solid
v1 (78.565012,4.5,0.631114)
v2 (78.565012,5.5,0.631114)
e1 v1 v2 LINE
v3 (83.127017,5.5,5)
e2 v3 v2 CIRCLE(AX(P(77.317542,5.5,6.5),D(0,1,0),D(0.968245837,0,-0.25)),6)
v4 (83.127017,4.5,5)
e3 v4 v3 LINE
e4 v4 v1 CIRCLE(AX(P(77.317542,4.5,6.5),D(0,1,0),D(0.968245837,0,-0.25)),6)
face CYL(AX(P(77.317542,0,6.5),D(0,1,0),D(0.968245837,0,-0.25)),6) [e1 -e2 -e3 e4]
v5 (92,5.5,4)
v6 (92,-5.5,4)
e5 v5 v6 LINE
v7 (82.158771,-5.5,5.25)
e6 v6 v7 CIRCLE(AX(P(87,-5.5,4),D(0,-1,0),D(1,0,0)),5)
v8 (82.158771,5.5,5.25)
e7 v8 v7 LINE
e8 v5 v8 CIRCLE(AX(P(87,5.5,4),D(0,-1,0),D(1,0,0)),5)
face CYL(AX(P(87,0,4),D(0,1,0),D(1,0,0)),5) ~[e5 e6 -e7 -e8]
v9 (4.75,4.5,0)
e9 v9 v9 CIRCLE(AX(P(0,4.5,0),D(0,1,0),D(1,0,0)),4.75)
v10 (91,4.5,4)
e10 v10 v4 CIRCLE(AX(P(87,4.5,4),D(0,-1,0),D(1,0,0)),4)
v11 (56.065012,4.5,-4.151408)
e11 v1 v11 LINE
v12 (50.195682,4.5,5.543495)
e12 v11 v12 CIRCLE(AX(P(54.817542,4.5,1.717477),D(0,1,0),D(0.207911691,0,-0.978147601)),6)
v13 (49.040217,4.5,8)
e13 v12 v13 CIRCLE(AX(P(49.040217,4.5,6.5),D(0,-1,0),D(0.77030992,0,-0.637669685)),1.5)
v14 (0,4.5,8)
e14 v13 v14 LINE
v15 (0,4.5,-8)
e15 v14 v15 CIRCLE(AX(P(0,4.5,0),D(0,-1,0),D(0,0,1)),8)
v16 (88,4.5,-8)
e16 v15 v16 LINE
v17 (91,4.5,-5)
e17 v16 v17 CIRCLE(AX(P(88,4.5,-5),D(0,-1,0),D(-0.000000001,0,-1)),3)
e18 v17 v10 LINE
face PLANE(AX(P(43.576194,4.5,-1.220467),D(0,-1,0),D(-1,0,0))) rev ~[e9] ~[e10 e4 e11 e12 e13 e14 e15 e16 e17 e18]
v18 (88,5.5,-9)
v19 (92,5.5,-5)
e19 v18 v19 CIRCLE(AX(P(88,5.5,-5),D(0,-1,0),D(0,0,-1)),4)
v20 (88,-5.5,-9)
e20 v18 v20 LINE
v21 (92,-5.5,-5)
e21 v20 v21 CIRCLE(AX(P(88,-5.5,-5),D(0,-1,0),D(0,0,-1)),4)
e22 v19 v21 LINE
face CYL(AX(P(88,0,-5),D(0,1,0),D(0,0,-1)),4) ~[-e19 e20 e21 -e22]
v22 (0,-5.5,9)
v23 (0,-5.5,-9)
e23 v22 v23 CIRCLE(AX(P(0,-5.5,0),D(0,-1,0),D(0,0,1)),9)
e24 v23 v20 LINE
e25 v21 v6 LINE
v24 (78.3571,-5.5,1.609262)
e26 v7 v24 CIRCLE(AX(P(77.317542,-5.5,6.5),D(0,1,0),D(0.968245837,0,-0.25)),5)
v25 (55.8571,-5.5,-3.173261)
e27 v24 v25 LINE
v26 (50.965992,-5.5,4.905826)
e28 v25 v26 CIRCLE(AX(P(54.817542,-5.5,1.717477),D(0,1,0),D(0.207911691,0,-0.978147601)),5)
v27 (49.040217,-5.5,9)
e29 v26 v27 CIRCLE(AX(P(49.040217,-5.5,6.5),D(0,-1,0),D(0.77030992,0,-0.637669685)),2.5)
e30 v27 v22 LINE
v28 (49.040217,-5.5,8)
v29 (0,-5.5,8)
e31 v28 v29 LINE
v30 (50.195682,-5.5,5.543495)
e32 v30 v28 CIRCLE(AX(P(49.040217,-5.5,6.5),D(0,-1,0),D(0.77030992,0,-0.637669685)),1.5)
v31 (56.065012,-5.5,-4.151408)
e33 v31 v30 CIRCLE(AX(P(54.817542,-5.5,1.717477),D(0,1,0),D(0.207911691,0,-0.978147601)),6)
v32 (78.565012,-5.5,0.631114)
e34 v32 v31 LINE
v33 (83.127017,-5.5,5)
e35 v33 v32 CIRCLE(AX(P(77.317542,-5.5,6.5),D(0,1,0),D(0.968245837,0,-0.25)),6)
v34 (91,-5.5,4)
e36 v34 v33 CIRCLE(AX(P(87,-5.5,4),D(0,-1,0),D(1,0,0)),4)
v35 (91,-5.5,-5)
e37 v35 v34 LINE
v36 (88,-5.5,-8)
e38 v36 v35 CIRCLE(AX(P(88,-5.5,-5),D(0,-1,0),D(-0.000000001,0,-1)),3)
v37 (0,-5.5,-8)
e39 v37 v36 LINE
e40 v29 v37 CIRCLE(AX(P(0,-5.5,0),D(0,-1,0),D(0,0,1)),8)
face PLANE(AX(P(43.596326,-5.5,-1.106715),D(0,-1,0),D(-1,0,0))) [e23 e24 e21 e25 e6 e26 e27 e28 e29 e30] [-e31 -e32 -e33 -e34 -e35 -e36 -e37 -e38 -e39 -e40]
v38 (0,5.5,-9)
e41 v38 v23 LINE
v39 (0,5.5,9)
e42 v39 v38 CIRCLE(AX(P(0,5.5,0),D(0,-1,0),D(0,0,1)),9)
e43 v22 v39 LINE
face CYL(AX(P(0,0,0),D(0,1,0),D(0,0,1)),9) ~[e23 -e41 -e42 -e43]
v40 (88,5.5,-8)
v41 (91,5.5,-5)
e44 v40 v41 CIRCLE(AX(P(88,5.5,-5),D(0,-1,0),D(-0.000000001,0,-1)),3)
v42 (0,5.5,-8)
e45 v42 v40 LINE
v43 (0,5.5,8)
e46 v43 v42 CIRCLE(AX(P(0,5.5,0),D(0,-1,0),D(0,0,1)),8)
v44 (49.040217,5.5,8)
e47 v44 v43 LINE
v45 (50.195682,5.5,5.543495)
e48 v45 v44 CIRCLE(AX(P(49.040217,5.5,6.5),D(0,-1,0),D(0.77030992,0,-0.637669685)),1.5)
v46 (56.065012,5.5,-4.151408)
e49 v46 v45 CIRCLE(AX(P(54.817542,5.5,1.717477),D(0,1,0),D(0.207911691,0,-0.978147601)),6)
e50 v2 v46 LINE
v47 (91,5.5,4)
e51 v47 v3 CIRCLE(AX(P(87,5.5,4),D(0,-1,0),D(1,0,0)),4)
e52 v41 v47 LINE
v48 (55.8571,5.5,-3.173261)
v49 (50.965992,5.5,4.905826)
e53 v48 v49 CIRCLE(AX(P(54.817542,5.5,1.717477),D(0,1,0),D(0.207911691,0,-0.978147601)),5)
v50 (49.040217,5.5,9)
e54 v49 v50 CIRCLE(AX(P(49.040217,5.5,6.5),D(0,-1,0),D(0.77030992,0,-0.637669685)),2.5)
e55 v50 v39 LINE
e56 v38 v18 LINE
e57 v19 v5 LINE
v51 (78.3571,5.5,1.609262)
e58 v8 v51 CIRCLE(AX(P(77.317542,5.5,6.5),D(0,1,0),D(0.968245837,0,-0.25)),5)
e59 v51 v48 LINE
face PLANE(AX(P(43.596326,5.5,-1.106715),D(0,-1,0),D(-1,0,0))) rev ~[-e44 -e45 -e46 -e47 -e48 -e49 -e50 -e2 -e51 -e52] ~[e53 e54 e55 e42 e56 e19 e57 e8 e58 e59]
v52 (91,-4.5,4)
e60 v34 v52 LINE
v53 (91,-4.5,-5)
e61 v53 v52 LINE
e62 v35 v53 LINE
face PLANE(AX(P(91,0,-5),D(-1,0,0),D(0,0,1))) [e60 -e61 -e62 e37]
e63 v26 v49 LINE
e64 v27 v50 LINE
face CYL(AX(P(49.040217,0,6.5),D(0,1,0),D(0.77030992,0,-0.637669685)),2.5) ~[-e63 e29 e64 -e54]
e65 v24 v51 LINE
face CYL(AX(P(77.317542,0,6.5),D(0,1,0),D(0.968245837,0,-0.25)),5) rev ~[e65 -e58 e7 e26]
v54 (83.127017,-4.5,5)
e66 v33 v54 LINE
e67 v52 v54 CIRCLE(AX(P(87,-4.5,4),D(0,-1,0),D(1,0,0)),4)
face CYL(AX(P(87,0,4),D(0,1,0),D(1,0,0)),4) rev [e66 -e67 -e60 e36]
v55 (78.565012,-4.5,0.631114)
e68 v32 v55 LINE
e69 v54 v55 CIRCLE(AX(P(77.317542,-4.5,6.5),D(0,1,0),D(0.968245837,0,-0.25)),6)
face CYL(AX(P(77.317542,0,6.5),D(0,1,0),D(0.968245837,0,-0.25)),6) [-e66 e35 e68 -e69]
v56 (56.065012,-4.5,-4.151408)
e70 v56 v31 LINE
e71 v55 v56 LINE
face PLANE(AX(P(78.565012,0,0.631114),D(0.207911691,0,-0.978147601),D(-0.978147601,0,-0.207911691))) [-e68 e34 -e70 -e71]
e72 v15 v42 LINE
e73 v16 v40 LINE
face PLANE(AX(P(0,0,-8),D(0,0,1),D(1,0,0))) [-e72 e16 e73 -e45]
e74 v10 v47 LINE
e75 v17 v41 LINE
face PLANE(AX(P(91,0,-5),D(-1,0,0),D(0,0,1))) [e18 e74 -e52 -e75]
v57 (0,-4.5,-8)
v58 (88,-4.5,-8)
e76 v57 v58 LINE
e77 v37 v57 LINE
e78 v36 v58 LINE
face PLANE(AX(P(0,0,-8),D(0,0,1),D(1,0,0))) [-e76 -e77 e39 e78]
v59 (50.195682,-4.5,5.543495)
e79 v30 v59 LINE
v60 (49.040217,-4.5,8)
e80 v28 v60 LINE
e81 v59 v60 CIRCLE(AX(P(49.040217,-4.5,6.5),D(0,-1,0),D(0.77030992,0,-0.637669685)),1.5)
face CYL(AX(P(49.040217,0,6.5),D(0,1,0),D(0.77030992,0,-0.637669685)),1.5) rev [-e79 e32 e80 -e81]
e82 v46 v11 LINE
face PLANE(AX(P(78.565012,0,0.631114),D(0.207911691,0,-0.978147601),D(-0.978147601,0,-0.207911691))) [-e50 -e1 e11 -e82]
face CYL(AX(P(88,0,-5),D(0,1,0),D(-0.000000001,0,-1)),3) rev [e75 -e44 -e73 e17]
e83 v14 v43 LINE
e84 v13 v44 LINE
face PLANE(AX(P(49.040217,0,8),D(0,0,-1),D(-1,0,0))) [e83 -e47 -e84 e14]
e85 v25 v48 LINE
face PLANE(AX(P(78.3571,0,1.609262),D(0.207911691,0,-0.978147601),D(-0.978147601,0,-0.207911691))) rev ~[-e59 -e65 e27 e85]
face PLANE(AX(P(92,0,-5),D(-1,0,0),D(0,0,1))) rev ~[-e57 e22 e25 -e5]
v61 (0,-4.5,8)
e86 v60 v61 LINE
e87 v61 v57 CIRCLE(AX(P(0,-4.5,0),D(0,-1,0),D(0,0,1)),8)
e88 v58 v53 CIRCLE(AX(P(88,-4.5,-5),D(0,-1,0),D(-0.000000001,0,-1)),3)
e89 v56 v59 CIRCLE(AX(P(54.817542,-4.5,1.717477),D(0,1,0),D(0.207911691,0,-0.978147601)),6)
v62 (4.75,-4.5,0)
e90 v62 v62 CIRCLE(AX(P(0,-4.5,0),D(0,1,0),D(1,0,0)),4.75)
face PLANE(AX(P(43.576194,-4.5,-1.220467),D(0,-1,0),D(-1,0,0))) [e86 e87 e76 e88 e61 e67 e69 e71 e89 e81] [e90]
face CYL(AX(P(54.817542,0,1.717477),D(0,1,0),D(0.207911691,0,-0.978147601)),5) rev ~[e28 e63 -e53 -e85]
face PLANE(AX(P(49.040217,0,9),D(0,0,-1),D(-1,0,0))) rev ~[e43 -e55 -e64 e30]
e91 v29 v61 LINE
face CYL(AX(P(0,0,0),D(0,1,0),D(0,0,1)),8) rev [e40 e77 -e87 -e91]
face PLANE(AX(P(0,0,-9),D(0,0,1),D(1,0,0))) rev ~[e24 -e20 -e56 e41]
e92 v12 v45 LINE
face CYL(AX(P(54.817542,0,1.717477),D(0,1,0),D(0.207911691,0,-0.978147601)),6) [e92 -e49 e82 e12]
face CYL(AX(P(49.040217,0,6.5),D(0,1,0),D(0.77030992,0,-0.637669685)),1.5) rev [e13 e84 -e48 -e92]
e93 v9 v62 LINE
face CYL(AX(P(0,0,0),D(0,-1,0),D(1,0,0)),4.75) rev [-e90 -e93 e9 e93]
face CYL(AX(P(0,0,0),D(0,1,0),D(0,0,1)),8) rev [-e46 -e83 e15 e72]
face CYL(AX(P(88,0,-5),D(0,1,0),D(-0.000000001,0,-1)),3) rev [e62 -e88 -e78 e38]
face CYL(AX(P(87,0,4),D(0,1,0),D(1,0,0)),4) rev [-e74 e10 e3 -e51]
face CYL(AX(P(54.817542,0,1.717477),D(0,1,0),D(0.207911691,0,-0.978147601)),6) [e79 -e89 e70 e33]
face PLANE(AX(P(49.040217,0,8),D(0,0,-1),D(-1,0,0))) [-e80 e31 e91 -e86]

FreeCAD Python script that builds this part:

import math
import FreeCAD as App
import Part
import Sketcher
Q = App.Units.Quantity

doc = App.newDocument("Part")
body = doc.addObject("PartDesign::Body", "Body")

sketch1 = body.newObject("Sketcher::SketchObject", "Sketch")
sketch1.AttachmentSupport = (doc.getObject("XZ_Plane"), [""])
sketch1.MapMode = "FlatFace"
sketch1.addGeometry(Part.ArcOfCircle(Part.Circle(App.Vector(49, 6.5, 0), App.Vector(0, 0, 1), 1.5), math.radians(-40), math.radians(90)), False)
sketch1.addGeometry(Part.ArcOfCircle(Part.Circle(App.Vector(54.8, 1.7, 0), App.Vector(0, 0, 1), 6), math.radians(140), math.radians(282)), False)
sketch1.addGeometry(Part.LineSegment(App.Vector(56.1, -4.2, 0), App.Vector(78.6, 0.6, 0)), False)
sketch1.addGeometry(Part.ArcOfCircle(Part.Circle(App.Vector(77.3, 6.5, 0), App.Vector(0, 0, 1), 6), math.radians(-78), math.radians(-14)), False)
sketch1.addGeometry(Part.ArcOfCircle(Part.Circle(App.Vector(87, 4, 0), App.Vector(0, 0, 1), 4), math.radians(0), math.radians(166)), False)
sketch1.addGeometry(Part.LineSegment(App.Vector(91, 4, 0), App.Vector(91, -5, 0)), False)
sketch1.addGeometry(Part.ArcOfCircle(Part.Circle(App.Vector(88, -5, 0), App.Vector(0, 0, 1), 3), math.radians(-90), math.radians(0)), False)
sketch1.addGeometry(Part.LineSegment(App.Vector(88, -8, 0), App.Vector(0, -8, 0)), False)
sketch1.addGeometry(Part.ArcOfCircle(Part.Circle(App.Vector(0, 0, 0), App.Vector(0, 0, 1), 8), math.radians(90), math.radians(270)), False)
sketch1.addGeometry(Part.LineSegment(App.Vector(0, 8, 0), App.Vector(49, 8, 0)), False)
sketch1.addGeometry(Part.Circle(App.Vector(0, 0, 0), App.Vector(0, 0, 1), 4.8), False)
sketch1.addConstraint(Sketcher.Constraint("Tangent", 0, 1, 1, 1))
sketch1.addConstraint(Sketcher.Constraint("Tangent", 1, 2, 2, 1))
sketch1.addConstraint(Sketcher.Constraint("Tangent", 2, 2, 3, 1))
sketch1.addConstraint(Sketcher.Constraint("Tangent", 3, 2, 4, 2))
sketch1.addConstraint(Sketcher.Constraint("Tangent", 4, 1, 5, 1))
sketch1.addConstraint(Sketcher.Constraint("Tangent", 5, 2, 6, 2))
sketch1.addConstraint(Sketcher.Constraint("Tangent", 6, 1, 7, 1))
sketch1.addConstraint(Sketcher.Constraint("Tangent", 7, 2, 8, 2))
sketch1.addConstraint(Sketcher.Constraint("Tangent", 8, 1, 9, 1))
sketch1.addConstraint(Sketcher.Constraint("Tangent", 9, 2, 0, 2))
sketch1.addConstraint(Sketcher.Constraint("Vertical", 5))
sketch1.addConstraint(Sketcher.Constraint("Horizontal", 7))
sketch1.addConstraint(Sketcher.Constraint("Horizontal", 9))
sketch1.addConstraint(Sketcher.Constraint("Coincident", 8, 3, -1, 1))
sketch1.addConstraint(Sketcher.Constraint("Coincident", 10, 3, -1, 1))
sketch1.addConstraint(Sketcher.Constraint("Equal", 1, 3))
sketch1.addConstraint(Sketcher.Constraint("Horizontal", 0, 3, 3, 3))
sketch1.addConstraint(Sketcher.Constraint("Radius", 1, Q("6 mm")))
sketch1.addConstraint(Sketcher.Constraint("Radius", 4, Q("4 mm")))
sketch1.addConstraint(Sketcher.Constraint("Radius", 6, Q("3 mm")))
sketch1.addConstraint(Sketcher.Constraint("Radius", 8, Q("8 mm")))
sketch1.addConstraint(Sketcher.Constraint("Diameter", 10, Q("9.5 mm")))
sketch1.addConstraint(Sketcher.Constraint("Radius", 0, Q("1.5 mm")))
sketch1.addConstraint(Sketcher.Constraint("DistanceX", 7, 2, 7, 1, Q("88 mm")))
sketch1.addConstraint(Sketcher.Constraint("DistanceY", 5, 2, 5, 1, Q("9 mm")))
sketch1.addConstraint(Sketcher.Constraint("Angle", 2, Q("12 deg")))
sketch1.addConstraint(Sketcher.Constraint("DistanceX", 1, 3, 3, 3, Q("22.5 mm")))
pad1 = body.newObject("PartDesign::Pad", "Pad")
pad1.Profile = sketch1
pad1.Length = 9
pad1.Midplane = True

sketch2 = body.newObject("Sketcher::SketchObject", "Sketch001")
sketch2.AttachmentSupport = (doc.getObject("XZ_Plane"), [""])
sketch2.MapMode = "FlatFace"
sketch2.addGeometry(Part.ArcOfCircle(Part.Circle(App.Vector(0, 0, 0), App.Vector(0, 0, 1), 9), math.radians(90), math.radians(270)), False)
sketch2.addGeometry(Part.LineSegment(App.Vector(0, 9, 0), App.Vector(49, 9, 0)), False)
sketch2.addGeometry(Part.ArcOfCircle(Part.Circle(App.Vector(49, 6.5, 0), App.Vector(0, 0, 1), 2.5), math.radians(-40), math.radians(90)), False)
sketch2.addGeometry(Part.ArcOfCircle(Part.Circle(App.Vector(54.8, 1.7, 0), App.Vector(0, 0, 1), 5), math.radians(140), math.radians(282)), False)
sketch2.addGeometry(Part.LineSegment(App.Vector(55.9, -3.2, 0), App.Vector(78.4, 1.6, 0)), False)
sketch2.addGeometry(Part.ArcOfCircle(Part.Circle(App.Vector(77.3, 6.5, 0), App.Vector(0, 0, 1), 5), math.radians(-78), math.radians(-14)), False)
sketch2.addGeometry(Part.ArcOfCircle(Part.Circle(App.Vector(87, 4, 0), App.Vector(0, 0, 1), 5), math.radians(0), math.radians(166)), False)
sketch2.addGeometry(Part.LineSegment(App.Vector(92, 4, 0), App.Vector(92, -5, 0)), False)
sketch2.addGeometry(Part.ArcOfCircle(Part.Circle(App.Vector(88, -5, 0), App.Vector(0, 0, 1), 4), math.radians(-90), math.radians(0)), False)
sketch2.addGeometry(Part.LineSegment(App.Vector(88, -9, 0), App.Vector(0, -9, 0)), False)
sketch2.addGeometry(Part.ArcOfCircle(Part.Circle(App.Vector(54.8, 1.7, 0), App.Vector(0, 0, 1), 6), math.radians(140), math.radians(282)), False)
sketch2.addGeometry(Part.ArcOfCircle(Part.Circle(App.Vector(49, 6.5, 0), App.Vector(0, 0, 1), 1.5), math.radians(-40), math.radians(90)), False)
sketch2.addGeometry(Part.LineSegment(App.Vector(49, 8, 0), App.Vector(0, 8, 0)), False)
sketch2.addGeometry(Part.ArcOfCircle(Part.Circle(App.Vector(0, 0, 0), App.Vector(0, 0, 1), 8), math.radians(90), math.radians(270)), False)
sketch2.addGeometry(Part.LineSegment(App.Vector(0, -8, 0), App.Vector(88, -8, 0)), False)
sketch2.addGeometry(Part.ArcOfCircle(Part.Circle(App.Vector(88, -5, 0), App.Vector(0, 0, 1), 3), math.radians(-90), math.radians(0)), False)
sketch2.addGeometry(Part.LineSegment(App.Vector(91, -5, 0), App.Vector(91, 4, 0)), False)
sketch2.addGeometry(Part.ArcOfCircle(Part.Circle(App.Vector(87, 4, 0), App.Vector(0, 0, 1), 4), math.radians(0), math.radians(166)), False)
sketch2.addGeometry(Part.ArcOfCircle(Part.Circle(App.Vector(77.3, 6.5, 0), App.Vector(0, 0, 1), 6), math.radians(-78), math.radians(-14)), False)
sketch2.addGeometry(Part.LineSegment(App.Vector(78.6, 0.6, 0), App.Vector(56.1, -4.2, 0)), False)
sketch2.addConstraint(Sketcher.Constraint("Tangent", 0, 1, 1, 1))
sketch2.addConstraint(Sketcher.Constraint("Tangent", 1, 2, 2, 2))
sketch2.addConstraint(Sketcher.Constraint("Tangent", 2, 1, 3, 1))
sketch2.addConstraint(Sketcher.Constraint("Tangent", 3, 2, 4, 1))
sketch2.addConstraint(Sketcher.Constraint("Tangent", 4, 2, 5, 1))
sketch2.addConstraint(Sketcher.Constraint("Tangent", 5, 2, 6, 2))
sketch2.addConstraint(Sketcher.Constraint("Tangent", 6, 1, 7, 1))
sketch2.addConstraint(Sketcher.Constraint("Tangent", 7, 2, 8, 2))
sketch2.addConstraint(Sketcher.Constraint("Tangent", 8, 1, 9, 1))
sketch2.addConstraint(Sketcher.Constraint("Tangent", 9, 2, 0, 2))
sketch2.addConstraint(Sketcher.Constraint("Tangent", 10, 1, 11, 1))
sketch2.addConstraint(Sketcher.Constraint("Tangent", 11, 2, 12, 1))
sketch2.addConstraint(Sketcher.Constraint("Tangent", 12, 2, 13, 1))
sketch2.addConstraint(Sketcher.Constraint("Tangent", 13, 2, 14, 1))
sketch2.addConstraint(Sketcher.Constraint("Tangent", 14, 2, 15, 1))
sketch2.addConstraint(Sketcher.Constraint("Tangent", 15, 2, 16, 1))
sketch2.addConstraint(Sketcher.Constraint("Tangent", 16, 2, 17, 1))
sketch2.addConstraint(Sketcher.Constraint("Tangent", 17, 2, 18, 2))
sketch2.addConstraint(Sketcher.Constraint("Tangent", 18, 1, 19, 1))
sketch2.addConstraint(Sketcher.Constraint("Tangent", 19, 2, 10, 2))
sketch2.addConstraint(Sketcher.Constraint("Horizontal", 1))
sketch2.addConstraint(Sketcher.Constraint("Vertical", 7))
sketch2.addConstraint(Sketcher.Constraint("Horizontal", 9))
sketch2.addConstraint(Sketcher.Constraint("Horizontal", 12))
sketch2.addConstraint(Sketcher.Constraint("Horizontal", 14))
sketch2.addConstraint(Sketcher.Constraint("Vertical", 16))
sketch2.addConstraint(Sketcher.Constraint("Coincident", 0, 3, -1, 1))
sketch2.addConstraint(Sketcher.Constraint("Coincident", 13, 3, -1, 1))
sketch2.addConstraint(Sketcher.Constraint("Coincident", 10, 3, 3, 3))
sketch2.addConstraint(Sketcher.Constraint("Coincident", 11, 3, 2, 3))
sketch2.addConstraint(Sketcher.Constraint("Coincident", 15, 3, 8, 3))
sketch2.addConstraint(Sketcher.Constraint("Coincident", 17, 3, 6, 3))
sketch2.addConstraint(Sketcher.Constraint("Coincident", 18, 3, 5, 3))
sketch2.addConstraint(Sketcher.Constraint("Equal", 3, 5))
sketch2.addConstraint(Sketcher.Constraint("Equal", 5, 6))
sketch2.addConstraint(Sketcher.Constraint("Equal", 8, 17))
sketch2.addConstraint(Sketcher.Constraint("Horizontal", 2, 3, 5, 3))
sketch2.addConstraint(Sketcher.Constraint("Radius", 0, Q("9 mm")))
sketch2.addConstraint(Sketcher.Constraint("Radius", 3, Q("5 mm")))
sketch2.addConstraint(Sketcher.Constraint("Radius", 8, Q("4 mm")))
sketch2.addConstraint(Sketcher.Constraint("Radius", 2, Q("2.5 mm")))
sketch2.addConstraint(Sketcher.Constraint("DistanceX", 9, 2, 9, 1, Q("88 mm")))
sketch2.addConstraint(Sketcher.Constraint("DistanceY", 7, 2, 7, 1, Q("9 mm")))
sketch2.addConstraint(Sketcher.Constraint("Angle", 4, Q("12 deg")))
sketch2.addConstraint(Sketcher.Constraint("DistanceX", 3, 3, 5, 3, Q("22.5 mm")))
pad2 = body.newObject("PartDesign::Pad", "Pad001")
pad2.Profile = sketch2
pad2.Length = 11
pad2.Midplane = True

doc.recompute()
